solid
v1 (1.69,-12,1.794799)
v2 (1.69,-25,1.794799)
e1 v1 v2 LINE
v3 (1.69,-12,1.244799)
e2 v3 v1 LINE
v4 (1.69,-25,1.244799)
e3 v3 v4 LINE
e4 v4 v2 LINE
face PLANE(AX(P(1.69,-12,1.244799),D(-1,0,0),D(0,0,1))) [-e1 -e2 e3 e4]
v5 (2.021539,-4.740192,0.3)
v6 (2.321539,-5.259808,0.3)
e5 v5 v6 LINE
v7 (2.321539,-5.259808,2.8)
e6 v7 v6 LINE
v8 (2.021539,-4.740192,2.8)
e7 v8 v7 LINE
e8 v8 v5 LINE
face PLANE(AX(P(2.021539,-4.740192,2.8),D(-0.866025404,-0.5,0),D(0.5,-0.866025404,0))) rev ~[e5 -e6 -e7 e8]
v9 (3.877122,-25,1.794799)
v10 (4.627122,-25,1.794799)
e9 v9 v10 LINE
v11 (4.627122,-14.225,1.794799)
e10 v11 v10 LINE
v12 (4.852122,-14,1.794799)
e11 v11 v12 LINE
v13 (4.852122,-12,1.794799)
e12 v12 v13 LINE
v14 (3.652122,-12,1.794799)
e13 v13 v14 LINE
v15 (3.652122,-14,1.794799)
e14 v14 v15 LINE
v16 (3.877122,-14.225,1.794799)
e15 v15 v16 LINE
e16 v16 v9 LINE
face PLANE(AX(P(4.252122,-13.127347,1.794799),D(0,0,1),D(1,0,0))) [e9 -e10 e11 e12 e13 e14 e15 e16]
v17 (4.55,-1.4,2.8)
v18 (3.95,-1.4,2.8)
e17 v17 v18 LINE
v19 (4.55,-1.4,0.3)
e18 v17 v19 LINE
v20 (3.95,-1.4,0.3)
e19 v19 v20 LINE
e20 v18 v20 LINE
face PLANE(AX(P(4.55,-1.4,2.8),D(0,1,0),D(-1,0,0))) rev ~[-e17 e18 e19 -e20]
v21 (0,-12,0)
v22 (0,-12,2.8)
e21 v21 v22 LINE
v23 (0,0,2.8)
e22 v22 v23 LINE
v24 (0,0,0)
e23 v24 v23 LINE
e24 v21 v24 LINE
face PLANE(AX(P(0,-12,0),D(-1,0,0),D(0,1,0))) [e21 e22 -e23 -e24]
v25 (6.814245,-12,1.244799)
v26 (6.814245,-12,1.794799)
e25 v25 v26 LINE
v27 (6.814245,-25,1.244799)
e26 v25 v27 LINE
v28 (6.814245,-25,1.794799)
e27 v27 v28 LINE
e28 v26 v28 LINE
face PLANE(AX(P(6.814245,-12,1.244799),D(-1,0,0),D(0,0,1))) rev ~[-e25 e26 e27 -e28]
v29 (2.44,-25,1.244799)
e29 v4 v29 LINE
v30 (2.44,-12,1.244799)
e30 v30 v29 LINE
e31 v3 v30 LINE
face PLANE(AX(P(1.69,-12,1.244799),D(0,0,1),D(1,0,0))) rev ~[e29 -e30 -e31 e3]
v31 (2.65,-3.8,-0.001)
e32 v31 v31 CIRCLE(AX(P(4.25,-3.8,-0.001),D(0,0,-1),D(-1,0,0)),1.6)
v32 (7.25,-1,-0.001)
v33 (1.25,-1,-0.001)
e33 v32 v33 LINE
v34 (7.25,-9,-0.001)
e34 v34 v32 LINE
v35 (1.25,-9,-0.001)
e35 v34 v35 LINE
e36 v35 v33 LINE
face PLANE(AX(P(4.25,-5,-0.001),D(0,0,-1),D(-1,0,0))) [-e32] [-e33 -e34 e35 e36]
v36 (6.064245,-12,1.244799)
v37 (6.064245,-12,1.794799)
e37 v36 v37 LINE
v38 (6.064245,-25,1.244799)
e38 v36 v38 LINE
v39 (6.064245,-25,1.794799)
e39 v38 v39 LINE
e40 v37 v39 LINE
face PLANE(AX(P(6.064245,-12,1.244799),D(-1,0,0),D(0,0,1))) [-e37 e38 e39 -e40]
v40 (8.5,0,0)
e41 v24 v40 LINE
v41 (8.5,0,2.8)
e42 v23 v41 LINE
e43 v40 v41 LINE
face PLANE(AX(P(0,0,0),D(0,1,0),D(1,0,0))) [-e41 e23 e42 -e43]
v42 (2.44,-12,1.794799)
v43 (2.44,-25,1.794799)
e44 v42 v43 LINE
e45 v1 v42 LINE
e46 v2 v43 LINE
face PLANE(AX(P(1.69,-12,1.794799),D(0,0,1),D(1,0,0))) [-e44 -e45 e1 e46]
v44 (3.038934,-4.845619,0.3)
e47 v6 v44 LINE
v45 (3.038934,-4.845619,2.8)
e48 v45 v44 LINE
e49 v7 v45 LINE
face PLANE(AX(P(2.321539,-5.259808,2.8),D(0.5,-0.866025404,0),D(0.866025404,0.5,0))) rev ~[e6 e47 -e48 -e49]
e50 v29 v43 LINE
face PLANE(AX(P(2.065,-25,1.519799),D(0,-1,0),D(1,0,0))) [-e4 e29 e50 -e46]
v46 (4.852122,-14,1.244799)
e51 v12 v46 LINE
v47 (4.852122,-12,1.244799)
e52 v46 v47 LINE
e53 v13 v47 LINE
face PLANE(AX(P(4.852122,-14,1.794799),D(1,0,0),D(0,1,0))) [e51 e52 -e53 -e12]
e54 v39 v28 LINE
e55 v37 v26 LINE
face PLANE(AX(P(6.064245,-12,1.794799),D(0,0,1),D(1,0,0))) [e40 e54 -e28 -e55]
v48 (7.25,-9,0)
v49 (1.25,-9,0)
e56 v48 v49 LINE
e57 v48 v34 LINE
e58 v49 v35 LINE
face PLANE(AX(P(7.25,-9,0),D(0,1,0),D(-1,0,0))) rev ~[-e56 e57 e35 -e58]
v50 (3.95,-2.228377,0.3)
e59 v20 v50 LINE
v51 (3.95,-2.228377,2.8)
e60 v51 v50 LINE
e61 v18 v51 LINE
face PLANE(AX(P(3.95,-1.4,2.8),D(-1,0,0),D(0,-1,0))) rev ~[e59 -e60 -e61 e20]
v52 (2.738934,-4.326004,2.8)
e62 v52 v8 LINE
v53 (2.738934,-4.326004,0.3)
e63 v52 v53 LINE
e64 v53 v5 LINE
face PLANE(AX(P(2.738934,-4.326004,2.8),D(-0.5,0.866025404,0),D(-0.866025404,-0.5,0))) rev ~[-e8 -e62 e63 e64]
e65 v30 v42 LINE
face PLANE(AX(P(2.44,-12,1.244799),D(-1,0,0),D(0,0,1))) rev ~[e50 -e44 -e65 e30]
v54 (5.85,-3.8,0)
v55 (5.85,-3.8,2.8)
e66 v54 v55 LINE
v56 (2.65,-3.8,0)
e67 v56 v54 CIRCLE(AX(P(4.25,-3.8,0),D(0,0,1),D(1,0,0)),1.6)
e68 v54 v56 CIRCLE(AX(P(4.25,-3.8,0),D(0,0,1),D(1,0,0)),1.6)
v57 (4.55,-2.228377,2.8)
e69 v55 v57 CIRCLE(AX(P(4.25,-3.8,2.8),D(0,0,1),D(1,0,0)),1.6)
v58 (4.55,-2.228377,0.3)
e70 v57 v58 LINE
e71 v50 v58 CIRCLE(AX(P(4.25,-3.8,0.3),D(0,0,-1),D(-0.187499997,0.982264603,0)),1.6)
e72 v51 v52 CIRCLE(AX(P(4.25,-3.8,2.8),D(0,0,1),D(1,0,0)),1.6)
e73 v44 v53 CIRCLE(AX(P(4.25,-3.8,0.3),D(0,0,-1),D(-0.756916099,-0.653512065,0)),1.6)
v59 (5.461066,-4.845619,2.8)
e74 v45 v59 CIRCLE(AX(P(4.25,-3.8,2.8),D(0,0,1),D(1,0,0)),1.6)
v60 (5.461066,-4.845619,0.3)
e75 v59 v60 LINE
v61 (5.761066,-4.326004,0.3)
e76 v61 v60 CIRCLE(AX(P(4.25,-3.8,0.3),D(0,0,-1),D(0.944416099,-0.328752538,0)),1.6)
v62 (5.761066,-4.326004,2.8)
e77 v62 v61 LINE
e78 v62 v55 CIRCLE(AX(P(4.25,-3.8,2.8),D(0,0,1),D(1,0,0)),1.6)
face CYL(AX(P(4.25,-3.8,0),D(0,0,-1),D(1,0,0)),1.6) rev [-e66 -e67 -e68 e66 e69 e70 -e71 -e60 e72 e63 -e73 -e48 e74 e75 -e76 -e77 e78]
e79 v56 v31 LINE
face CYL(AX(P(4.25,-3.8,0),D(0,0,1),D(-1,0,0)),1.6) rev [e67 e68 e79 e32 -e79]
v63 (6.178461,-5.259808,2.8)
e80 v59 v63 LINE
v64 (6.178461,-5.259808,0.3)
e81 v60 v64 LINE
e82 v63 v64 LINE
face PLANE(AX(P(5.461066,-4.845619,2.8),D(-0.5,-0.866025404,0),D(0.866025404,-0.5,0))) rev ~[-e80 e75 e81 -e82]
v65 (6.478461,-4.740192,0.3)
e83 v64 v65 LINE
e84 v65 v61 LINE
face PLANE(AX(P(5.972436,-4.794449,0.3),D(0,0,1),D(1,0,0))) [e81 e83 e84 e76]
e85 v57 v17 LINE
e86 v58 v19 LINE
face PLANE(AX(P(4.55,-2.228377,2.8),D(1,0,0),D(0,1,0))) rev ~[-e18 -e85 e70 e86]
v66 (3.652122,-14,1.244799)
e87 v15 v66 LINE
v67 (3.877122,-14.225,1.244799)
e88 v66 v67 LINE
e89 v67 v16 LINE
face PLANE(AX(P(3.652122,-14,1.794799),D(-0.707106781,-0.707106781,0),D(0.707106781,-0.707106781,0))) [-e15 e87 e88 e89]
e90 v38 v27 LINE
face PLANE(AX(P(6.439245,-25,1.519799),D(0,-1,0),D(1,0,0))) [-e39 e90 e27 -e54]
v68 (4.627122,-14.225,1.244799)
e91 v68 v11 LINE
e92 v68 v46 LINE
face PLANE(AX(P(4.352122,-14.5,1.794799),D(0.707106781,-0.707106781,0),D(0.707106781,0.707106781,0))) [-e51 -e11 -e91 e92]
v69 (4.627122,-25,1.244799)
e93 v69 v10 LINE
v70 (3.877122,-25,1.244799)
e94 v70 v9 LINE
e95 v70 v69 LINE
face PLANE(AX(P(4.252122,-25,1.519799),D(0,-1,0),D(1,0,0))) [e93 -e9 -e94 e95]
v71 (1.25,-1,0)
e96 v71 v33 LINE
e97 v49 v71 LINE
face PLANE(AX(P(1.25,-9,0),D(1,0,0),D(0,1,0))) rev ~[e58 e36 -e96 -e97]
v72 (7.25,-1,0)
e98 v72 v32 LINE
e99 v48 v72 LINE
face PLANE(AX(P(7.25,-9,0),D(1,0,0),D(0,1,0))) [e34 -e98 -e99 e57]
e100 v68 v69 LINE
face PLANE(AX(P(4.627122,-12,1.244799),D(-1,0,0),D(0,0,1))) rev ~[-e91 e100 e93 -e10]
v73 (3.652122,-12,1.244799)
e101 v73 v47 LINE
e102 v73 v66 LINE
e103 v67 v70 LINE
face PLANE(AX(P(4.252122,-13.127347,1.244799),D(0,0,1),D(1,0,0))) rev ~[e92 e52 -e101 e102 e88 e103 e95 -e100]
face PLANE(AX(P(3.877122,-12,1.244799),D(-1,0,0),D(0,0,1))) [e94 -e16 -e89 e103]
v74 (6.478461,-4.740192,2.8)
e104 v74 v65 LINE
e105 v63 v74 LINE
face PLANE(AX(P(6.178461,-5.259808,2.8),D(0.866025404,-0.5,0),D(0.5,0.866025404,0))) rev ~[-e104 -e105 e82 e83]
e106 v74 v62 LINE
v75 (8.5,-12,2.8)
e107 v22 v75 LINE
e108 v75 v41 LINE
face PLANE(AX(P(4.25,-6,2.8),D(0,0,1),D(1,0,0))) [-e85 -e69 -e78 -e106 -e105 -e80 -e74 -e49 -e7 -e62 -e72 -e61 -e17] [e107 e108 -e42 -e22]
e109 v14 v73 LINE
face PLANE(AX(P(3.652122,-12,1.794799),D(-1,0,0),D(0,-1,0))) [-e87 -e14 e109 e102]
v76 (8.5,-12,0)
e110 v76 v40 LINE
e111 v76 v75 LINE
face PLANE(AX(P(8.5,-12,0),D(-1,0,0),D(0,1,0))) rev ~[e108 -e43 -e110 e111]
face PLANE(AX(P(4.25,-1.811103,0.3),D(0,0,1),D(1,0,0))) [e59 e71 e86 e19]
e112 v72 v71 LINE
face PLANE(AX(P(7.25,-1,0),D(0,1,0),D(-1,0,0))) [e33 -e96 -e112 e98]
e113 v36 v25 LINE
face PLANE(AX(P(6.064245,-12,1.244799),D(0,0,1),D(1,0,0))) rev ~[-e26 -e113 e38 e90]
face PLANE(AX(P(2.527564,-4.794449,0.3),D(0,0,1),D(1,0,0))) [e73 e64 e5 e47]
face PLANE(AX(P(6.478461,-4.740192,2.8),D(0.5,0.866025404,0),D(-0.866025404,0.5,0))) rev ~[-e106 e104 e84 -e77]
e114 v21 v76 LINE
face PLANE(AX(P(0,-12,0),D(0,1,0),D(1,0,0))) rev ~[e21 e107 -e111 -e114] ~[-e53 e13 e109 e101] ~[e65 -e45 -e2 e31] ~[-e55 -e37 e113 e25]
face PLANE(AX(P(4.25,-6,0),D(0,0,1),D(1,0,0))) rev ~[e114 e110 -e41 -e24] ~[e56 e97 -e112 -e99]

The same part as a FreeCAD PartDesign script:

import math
import FreeCAD as App
import Part
import Sketcher
Q = App.Units.Quantity


def add_polygon(sketch, points):
    """Adds a closed chain of lines whose ends are joined by coincident constraints."""
    first, n = sketch.GeometryCount, len(points)
    for a, b in zip(points, points[1:] + points[:1]):
        sketch.addGeometry(Part.LineSegment(App.Vector(*a, 0), App.Vector(*b, 0)), False)
    for i in range(n):
        sketch.addConstraint(Sketcher.Constraint("Coincident", first + i, 2, first + (i + 1) % n, 1))

doc = App.newDocument("Part")
body = doc.addObject("PartDesign::Body", "Body")

# Sketch on XY plane
sketch1 = body.newObject("Sketcher::SketchObject", "Sketch")
sketch1.AttachmentSupport = (doc.getObject("XY_Plane"), [""])
sketch1.MapMode = "FlatFace"
add_polygon(sketch1, [(0, 0), (0, -12), (8.5, -12), (8.5, 0)])  # lines 0-3
sketch1.addGeometry(Part.Circle(App.Vector(4.25, -3.8, 0), App.Vector(0, 0, 1), 1.6), False)  # 4
sketch1.addConstraint([
    Sketcher.Constraint("Vertical", 0),
    Sketcher.Constraint("Horizontal", 1),
    Sketcher.Constraint("Vertical", 2),
    Sketcher.Constraint("Horizontal", 3),
    Sketcher.Constraint("Coincident", 3, 2, -1, 1),
    Sketcher.Constraint("Diameter", 4, Q("3.2 mm")),
    Sketcher.Constraint("DistanceY", 0, 2, 0, 1, Q("12 mm")),
    Sketcher.Constraint("DistanceX", 1, 1, 1, 2, Q("8.5 mm")),
    Sketcher.Constraint("DistanceY", 4, 3, -1, 1, Q("3.8 mm")),
    Sketcher.Constraint("DistanceX", -1, 1, 4, 3, Q("4.25 mm")),
])
pad1 = body.newObject("PartDesign::Pad", "Pad")
pad1.Profile = sketch1
pad1.Length = 2.8

# Sketch on XY plane
sketch2 = body.newObject("Sketcher::SketchObject", "Sketch001")
sketch2.AttachmentSupport = (doc.getObject("XY_Plane"), [""])
sketch2.MapMode = "FlatFace"
sketch2.AttachmentOffset = App.Placement(App.Vector(0, 0, 2.8), App.Rotation())
sketch2.addGeometry([
    Part.LineSegment(App.Vector(2.321539, -5.259808, 0), App.Vector(3.038934, -4.845619, 0)),  # 0
    Part.ArcOfCircle(Part.Circle(App.Vector(4.25, -3.8, 0), App.Vector(0, 0, 1), 1.6), math.radians(-160.806923), math.radians(-139.193077)),  # 1
    Part.LineSegment(App.Vector(2.738934, -4.326004, 0), App.Vector(2.021539, -4.740192, 0)),  # 2
    Part.LineSegment(App.Vector(2.021539, -4.740192, 0), App.Vector(2.321539, -5.259808, 0)),  # 3
    Part.LineSegment(App.Vector(6.178461, -5.259808, 0), App.Vector(6.478461, -4.740192, 0)),  # 4
    Part.LineSegment(App.Vector(6.478461, -4.740192, 0), App.Vector(5.761066, -4.326004, 0)),  # 5
    Part.ArcOfCircle(Part.Circle(App.Vector(4.25, -3.8, 0), App.Vector(0, 0, 1), 1.6), math.radians(-40.806923), math.radians(-19.193077)),  # 6
    Part.LineSegment(App.Vector(5.461066, -4.845619, 0), App.Vector(6.178461, -5.259808, 0)),  # 7
    Part.ArcOfCircle(Part.Circle(App.Vector(4.25, -3.8, 0), App.Vector(0, 0, 1), 1.6), math.radians(79.193077), math.radians(100.806923)),  # 8
    Part.LineSegment(App.Vector(4.55, -2.228377, 0), App.Vector(4.55, -1.4, 0)),  # 9
    Part.LineSegment(App.Vector(4.55, -1.4, 0), App.Vector(3.95, -1.4, 0)),  # 10
    Part.LineSegment(App.Vector(3.95, -1.4, 0), App.Vector(3.95, -2.228377, 0)),  # 11
], False)
sketch2.addConstraint([
    Sketcher.Constraint("Coincident", 0, 2, 1, 2),
    Sketcher.Constraint("Coincident", 1, 1, 2, 1),
    Sketcher.Constraint("Coincident", 2, 2, 3, 1),
    Sketcher.Constraint("Coincident", 3, 2, 0, 1),
    Sketcher.Constraint("Coincident", 4, 2, 5, 1),
    Sketcher.Constraint("Coincident", 5, 2, 6, 2),
    Sketcher.Constraint("Coincident", 6, 1, 7, 1),
    Sketcher.Constraint("Coincident", 7, 2, 4, 1),
    Sketcher.Constraint("Coincident", 8, 1, 9, 1),
    Sketcher.Constraint("Coincident", 9, 2, 10, 1),
    Sketcher.Constraint("Coincident", 10, 2, 11, 1),
    Sketcher.Constraint("Coincident", 11, 2, 8, 2),
    Sketcher.Constraint("Vertical", 9),
    Sketcher.Constraint("Horizontal", 10),
    Sketcher.Constraint("Vertical", 11),
    Sketcher.Constraint("Coincident", 6, 3, 1, 3),
    Sketcher.Constraint("Coincident", 8, 3, 1, 3),
    Sketcher.Constraint("Equal", 1, 6),
    Sketcher.Constraint("Equal", 6, 8),
    Sketcher.Constraint("Parallel", 0, 2),
    Sketcher.Constraint("Perpendicular", 2, 3),
    Sketcher.Constraint("Perpendicular", 4, 5),
    Sketcher.Constraint("Parallel", 5, 7),
    Sketcher.Constraint("Horizontal", 2, 2, 4, 2),
    Sketcher.Constraint("Horizontal", 1, 1, 5, 2),
    Sketcher.Constraint("Horizontal", 0, 2, 6, 1),
    Sketcher.Constraint("Horizontal", 3, 2, 7, 2),
    Sketcher.Constraint("Horizontal", 8, 1, 11, 2),
    Sketcher.Constraint("Equal", 0, 2),
    Sketcher.Constraint("Radius", 1, Q("1.6 mm")),
    Sketcher.Constraint("Angle", 0, Q("30 deg")),
    Sketcher.Constraint("DistanceX", 10, 2, 10, 1, Q("0.6 mm")),
    Sketcher.Constraint("Distance", 3, Q("0.6 mm")),
    Sketcher.Constraint("DistanceY", 1, 3, -1, 1, Q("3.8 mm")),
    Sketcher.Constraint("DistanceY", 9, 2, -1, 1, Q("1.4 mm")),
    Sketcher.Constraint("DistanceX", -1, 1, 1, 3, Q("4.25 mm")),
    Sketcher.Constraint("DistanceX", -1, 1, 2, 2, Q("2.021539 mm")),
])
pocket1 = body.newObject("PartDesign::Pocket", "Pocket")
pocket1.Profile = sketch2
pocket1.Length = 2.5

# Sketch on XZ plane
sketch3 = body.newObject("Sketcher::SketchObject", "Sketch002")
sketch3.AttachmentSupport = (doc.getObject("XZ_Plane"), [""])
sketch3.MapMode = "FlatFace"
sketch3.AttachmentOffset = App.Placement(App.Vector(0, 0, 12), App.Rotation())
add_polygon(sketch3, [(1.69, 1.794799), (1.69, 1.244799), (2.44, 1.244799), (2.44, 1.794799)])  # lines 0-3
add_polygon(sketch3, [(3.877122, 1.794799), (3.877122, 1.244799), (4.627122, 1.244799), (4.627122, 1.794799)])  # lines 4-7
add_polygon(sketch3, [(6.064245, 1.794799), (6.064245, 1.244799), (6.814245, 1.244799), (6.814245, 1.794799)])  # lines 8-11
sketch3.addConstraint([
    Sketcher.Constraint("Vertical", 0),
    Sketcher.Constraint("Horizontal", 1),
    Sketcher.Constraint("Vertical", 2),
    Sketcher.Constraint("Horizontal", 3),
    Sketcher.Constraint("Vertical", 4),
    Sketcher.Constraint("Horizontal", 5),
    Sketcher.Constraint("Vertical", 6),
    Sketcher.Constraint("Horizontal", 7),
    Sketcher.Constraint("Vertical", 8),
    Sketcher.Constraint("Horizontal", 9),
    Sketcher.Constraint("Vertical", 10),
    Sketcher.Constraint("Horizontal", 11),
    Sketcher.Constraint("Horizontal", 1, 2, 4, 2),
    Sketcher.Constraint("Horizontal", 3, 2, 6, 2),
    Sketcher.Constraint("Horizontal", 5, 2, 8, 2),
    Sketcher.Constraint("Horizontal", 7, 2, 10, 2),
    Sketcher.Constraint("Equal", 3, 5),
    Sketcher.Constraint("Equal", 7, 9),
    Sketcher.Constraint("DistanceX", 1, 1, 1, 2, Q("0.75 mm")),
    Sketcher.Constraint("DistanceY", 0, 2, 0, 1, Q("0.55 mm")),
    Sketcher.Constraint("DistanceX", -1, 1, 0, 2, Q("1.69 mm")),
    Sketcher.Constraint("DistanceY", -1, 1, 0, 2, Q("1.244799 mm")),
    Sketcher.Constraint("DistanceX", -1, 1, 4, 2, Q("3.877122 mm")),
    Sketcher.Constraint("DistanceX", -1, 1, 8, 2, Q("6.064245 mm")),
])
pad2 = body.newObject("PartDesign::Pad", "Pad001")
pad2.Profile = sketch3
pad2.Length = 13

# Sketch on XY plane
sketch4 = body.newObject("Sketcher::SketchObject", "Sketch003")
sketch4.AttachmentSupport = (doc.getObject("XY_Plane"), [""])
sketch4.MapMode = "FlatFace"
sketch4.AttachmentOffset = App.Placement(App.Vector(0, 0, 1.794799), App.Rotation())
add_polygon(sketch4, [(3.652122, -14), (4.152122, -14.5), (4.352122, -14.5), (4.852122, -14), (4.852122, -12), (3.652122, -12)])  # lines 0-5
sketch4.addConstraint([
    Sketcher.Constraint("Horizontal", 1),
    Sketcher.Constraint("Vertical", 3),
    Sketcher.Constraint("Horizontal", 4),
    Sketcher.Constraint("Vertical", 5),
    Sketcher.Constraint("Perpendicular", 0, 2),
    Sketcher.Constraint("Horizontal", 2, 2, 5, 2),
    Sketcher.Constraint("Equal", 0, 2),
    Sketcher.Constraint("DistanceY", 3, 1, 3, 2, Q("2 mm")),
    Sketcher.Constraint("DistanceX", 1, 1, 1, 2, Q("0.2 mm")),
    Sketcher.Constraint("DistanceX", 4, 2, 4, 1, Q("1.2 mm")),
    Sketcher.Constraint("DistanceY", 2, 2, -1, 1, Q("14 mm")),
    Sketcher.Constraint("DistanceX", -1, 1, 0, 2, Q("4.152122 mm")),
])
pad3 = body.newObject("PartDesign::Pad", "Pad002")
pad3.Profile = sketch4
pad3.Length = 0.55
pad3.Reversed = True

# Sketch on XY plane
sketch5 = body.newObject("Sketcher::SketchObject", "Sketch004")
sketch5.AttachmentSupport = (doc.getObject("XY_Plane"), [""])
sketch5.MapMode = "FlatFace"
add_polygon(sketch5, [(7.25, -1), (7.25, -9), (1.25, -9), (1.25, -1)])  # lines 0-3
sketch5.addGeometry(Part.Circle(App.Vector(4.25, -3.8, 0), App.Vector(0, 0, 1), 1.6), False)  # 4
sketch5.addConstraint([
    Sketcher.Constraint("Vertical", 0),
    Sketcher.Constraint("Horizontal", 1),
    Sketcher.Constraint("Vertical", 2),
    Sketcher.Constraint("Horizontal", 3),
    Sketcher.Constraint("Diameter", 4, Q("3.2 mm")),
    Sketcher.Constraint("DistanceX", 1, 2, 1, 1, Q("6 mm")),
    Sketcher.Constraint("DistanceY", 0, 2, 0, 1, Q("8 mm")),
    Sketcher.Constraint("DistanceY", 0, 2, -1, 1, Q("9 mm")),
    Sketcher.Constraint("DistanceX", 4, 3, 0, 2, Q("3 mm")),
    Sketcher.Constraint("DistanceY", 4, 3, -1, 1, Q("3.8 mm")),
    Sketcher.Constraint("DistanceX", -1, 1, 4, 3, Q("4.25 mm")),
])
pad4 = body.newObject("PartDesign::Pad", "Pad003")
pad4.Profile = sketch5
pad4.Length = 0.001
pad4.Reversed = True

doc.recompute()
